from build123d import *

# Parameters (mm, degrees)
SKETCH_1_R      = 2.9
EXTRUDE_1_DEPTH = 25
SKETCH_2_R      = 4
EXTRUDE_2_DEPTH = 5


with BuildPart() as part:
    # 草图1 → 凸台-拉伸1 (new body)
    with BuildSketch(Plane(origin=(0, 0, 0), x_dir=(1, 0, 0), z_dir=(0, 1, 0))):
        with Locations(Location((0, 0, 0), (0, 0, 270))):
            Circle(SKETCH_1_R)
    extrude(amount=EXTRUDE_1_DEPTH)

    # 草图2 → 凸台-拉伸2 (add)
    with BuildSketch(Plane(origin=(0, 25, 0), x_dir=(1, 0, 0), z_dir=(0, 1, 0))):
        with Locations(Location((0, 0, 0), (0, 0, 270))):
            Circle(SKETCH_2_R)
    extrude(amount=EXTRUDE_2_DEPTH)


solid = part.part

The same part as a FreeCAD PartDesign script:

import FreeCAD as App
import Part
import Sketcher

doc = App.newDocument("Part")
params = doc.addObject("Spreadsheet::Sheet", "Params")
for row, (alias, value) in enumerate([
    ("sketch1_diameter", "5.8 mm"),
    ("pad1_length", "25 mm"),
    ("sketch2_diameter", "8 mm"),
    ("pad2_length", "5 mm"),
], start=1):
    params.set(f"A{row}", alias)
    params.set(f"B{row}", "=" + value)
    params.setAlias(f"B{row}", alias)

body = doc.addObject("PartDesign::Body", "Body")

# Sketch on XZ plane
sketch1 = body.newObject("Sketcher::SketchObject", "Sketch")
sketch1.AttachmentSupport = (doc.getObject("XZ_Plane"), [""])
sketch1.MapMode = "FlatFace"
sketch1.addGeometry(Part.Circle(App.Vector(0, 0, 0), App.Vector(0, 0, 1), 2.9), False)
sketch1.addConstraint([
    Sketcher.Constraint("Coincident", 0, 3, -1, 1),
    Sketcher.Constraint("Diameter", 0, 5.8),
])
sketch1.setExpression("Constraints[1]", "Params.sketch1_diameter")
pad1 = body.newObject("PartDesign::Pad", "Pad")
pad1.Profile = sketch1
pad1.setExpression("Length", "Params.pad1_length")
pad1.Reversed = True

# Sketch on XZ plane
sketch2 = body.newObject("Sketcher::SketchObject", "Sketch001")
sketch2.AttachmentSupport = (doc.getObject("XZ_Plane"), [""])
sketch2.MapMode = "FlatFace"
sketch2.AttachmentOffset = App.Placement(App.Vector(0, 0, -25), App.Rotation())
sketch2.addGeometry(Part.Circle(App.Vector(0, 0, 0), App.Vector(0, 0, 1), 4), False)
sketch2.addConstraint([
    Sketcher.Constraint("Coincident", 0, 3, -1, 1),
    Sketcher.Constraint("Diameter", 0, 8.0),
])
sketch2.setExpression("Constraints[1]", "Params.sketch2_diameter")
pad2 = body.newObject("PartDesign::Pad", "Pad001")
pad2.Profile = sketch2
pad2.setExpression("Length", "Params.pad2_length")
pad2.Reversed = True

doc.recompute()
